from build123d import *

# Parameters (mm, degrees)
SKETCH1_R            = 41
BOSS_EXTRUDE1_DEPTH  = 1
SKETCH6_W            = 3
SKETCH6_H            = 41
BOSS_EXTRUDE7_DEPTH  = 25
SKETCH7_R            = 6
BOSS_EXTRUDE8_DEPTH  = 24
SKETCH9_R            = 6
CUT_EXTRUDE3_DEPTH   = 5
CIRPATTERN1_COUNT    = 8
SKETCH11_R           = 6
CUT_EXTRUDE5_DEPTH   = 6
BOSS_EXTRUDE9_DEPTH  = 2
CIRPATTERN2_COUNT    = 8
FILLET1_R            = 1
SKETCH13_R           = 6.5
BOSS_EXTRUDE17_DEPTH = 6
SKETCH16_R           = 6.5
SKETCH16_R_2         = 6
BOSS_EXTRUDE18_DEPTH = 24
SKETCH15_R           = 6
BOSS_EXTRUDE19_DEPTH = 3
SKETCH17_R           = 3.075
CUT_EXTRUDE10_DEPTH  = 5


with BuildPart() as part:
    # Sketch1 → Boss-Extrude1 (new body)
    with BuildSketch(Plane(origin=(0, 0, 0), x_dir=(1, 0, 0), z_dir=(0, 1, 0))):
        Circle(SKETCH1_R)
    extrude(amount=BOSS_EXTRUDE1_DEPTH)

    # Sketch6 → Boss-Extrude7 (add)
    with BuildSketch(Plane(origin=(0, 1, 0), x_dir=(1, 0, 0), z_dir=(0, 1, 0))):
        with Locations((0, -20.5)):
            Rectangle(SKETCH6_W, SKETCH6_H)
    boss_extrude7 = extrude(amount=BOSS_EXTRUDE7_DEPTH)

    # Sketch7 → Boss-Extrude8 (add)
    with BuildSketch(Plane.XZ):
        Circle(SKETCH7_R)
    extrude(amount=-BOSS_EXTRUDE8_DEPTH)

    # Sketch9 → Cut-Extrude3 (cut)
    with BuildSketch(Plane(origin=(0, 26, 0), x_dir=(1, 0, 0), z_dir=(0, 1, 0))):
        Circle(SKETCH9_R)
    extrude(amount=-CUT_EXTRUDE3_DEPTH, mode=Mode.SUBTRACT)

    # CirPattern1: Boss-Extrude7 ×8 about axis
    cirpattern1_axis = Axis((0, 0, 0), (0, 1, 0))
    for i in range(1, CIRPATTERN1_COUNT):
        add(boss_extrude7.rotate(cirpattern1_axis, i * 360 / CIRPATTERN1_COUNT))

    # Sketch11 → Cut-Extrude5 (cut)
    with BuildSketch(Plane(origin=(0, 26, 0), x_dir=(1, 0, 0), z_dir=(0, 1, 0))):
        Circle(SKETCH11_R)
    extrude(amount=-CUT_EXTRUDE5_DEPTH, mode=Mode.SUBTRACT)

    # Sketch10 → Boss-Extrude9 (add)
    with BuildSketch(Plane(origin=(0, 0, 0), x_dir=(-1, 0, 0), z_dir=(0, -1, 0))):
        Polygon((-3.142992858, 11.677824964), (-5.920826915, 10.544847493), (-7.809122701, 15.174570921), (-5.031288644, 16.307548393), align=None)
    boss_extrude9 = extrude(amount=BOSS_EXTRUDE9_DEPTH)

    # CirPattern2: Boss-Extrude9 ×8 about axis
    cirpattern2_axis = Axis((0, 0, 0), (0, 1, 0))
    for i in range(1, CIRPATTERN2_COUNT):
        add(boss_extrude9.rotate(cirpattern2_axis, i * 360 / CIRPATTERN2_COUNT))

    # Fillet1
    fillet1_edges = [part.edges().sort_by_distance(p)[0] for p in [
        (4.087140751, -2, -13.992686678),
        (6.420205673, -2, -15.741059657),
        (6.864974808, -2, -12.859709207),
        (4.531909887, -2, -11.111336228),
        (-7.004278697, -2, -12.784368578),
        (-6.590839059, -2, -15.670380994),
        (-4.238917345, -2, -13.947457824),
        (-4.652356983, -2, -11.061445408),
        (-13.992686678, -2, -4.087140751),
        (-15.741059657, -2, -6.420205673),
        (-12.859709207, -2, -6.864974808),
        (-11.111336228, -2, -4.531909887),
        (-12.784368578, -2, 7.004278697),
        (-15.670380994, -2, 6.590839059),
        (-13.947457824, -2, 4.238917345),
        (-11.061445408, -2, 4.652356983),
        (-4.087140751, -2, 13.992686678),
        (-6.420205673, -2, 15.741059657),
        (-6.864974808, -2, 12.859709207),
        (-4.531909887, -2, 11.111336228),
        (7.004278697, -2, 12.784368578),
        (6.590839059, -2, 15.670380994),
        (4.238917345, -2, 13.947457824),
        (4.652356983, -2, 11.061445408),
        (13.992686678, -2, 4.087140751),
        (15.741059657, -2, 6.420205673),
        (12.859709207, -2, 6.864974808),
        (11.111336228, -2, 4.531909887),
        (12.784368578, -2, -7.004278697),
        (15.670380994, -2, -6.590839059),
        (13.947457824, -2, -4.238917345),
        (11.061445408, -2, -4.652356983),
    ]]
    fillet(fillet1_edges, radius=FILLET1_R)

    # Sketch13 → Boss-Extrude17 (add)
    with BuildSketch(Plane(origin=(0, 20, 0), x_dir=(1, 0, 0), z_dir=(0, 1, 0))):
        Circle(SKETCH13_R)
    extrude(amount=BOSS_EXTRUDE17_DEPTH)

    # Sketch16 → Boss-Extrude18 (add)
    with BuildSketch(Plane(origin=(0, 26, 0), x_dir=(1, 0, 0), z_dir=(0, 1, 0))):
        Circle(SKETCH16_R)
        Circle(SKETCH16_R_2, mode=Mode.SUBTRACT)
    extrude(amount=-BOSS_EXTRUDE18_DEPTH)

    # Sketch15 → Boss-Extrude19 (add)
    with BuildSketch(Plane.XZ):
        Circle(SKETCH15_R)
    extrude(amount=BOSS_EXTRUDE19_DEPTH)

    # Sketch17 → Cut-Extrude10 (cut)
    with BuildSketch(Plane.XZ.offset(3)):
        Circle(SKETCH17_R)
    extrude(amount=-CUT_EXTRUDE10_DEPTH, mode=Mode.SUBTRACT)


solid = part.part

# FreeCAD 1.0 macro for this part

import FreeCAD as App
import Part
import Sketcher
from FreeCAD import Vector


def edges_at(feature, points):
    """Names of the edges that pass closest to the given points."""
    edges = feature.Shape.Edges
    near = lambda p: min(range(len(edges)), key=lambda i: edges[i].distToShape(Part.Vertex(*p))[0])
    return sorted({f"Edge{near(p) + 1}" for p in points})


def add_polygon(sketch, points):
    """Adds a closed chain of lines whose ends are joined by coincident constraints."""
    first, n = sketch.GeometryCount, len(points)
    for a, b in zip(points, points[1:] + points[:1]):
        sketch.addGeometry(Part.LineSegment(App.Vector(*a, 0), App.Vector(*b, 0)), False)
    for i in range(n):
        sketch.addConstraint(Sketcher.Constraint("Coincident", first + i, 2, first + (i + 1) % n, 1))

doc = App.newDocument("Part")
body = doc.addObject("PartDesign::Body", "Body")

sketch1 = doc.addObject("Sketcher::SketchObject", "Sketch")
body.addObject(sketch1)
sketch1.AttachmentSupport = (doc.XZ_Plane, [""])
sketch1.MapMode = "FlatFace"
sketch1.addGeometry(Part.Circle(Vector(0, 0, 0), Vector(0, 0, 1), 41), False)
sketch1.addConstraint(Sketcher.Constraint("Coincident", 0, 3, -1, 1))
sketch1.addConstraint(Sketcher.Constraint("Diameter", 0, 82.0))
pad1 = doc.addObject("PartDesign::Pad", "Pad")
body.addObject(pad1)
pad1.Profile = sketch1
pad1.Length = 1
pad1.Reversed = True

sketch2 = doc.addObject("Sketcher::SketchObject", "Sketch001")
body.addObject(sketch2)
sketch2.AttachmentSupport = (doc.XZ_Plane, [""])
sketch2.MapMode = "FlatFace"
sketch2.AttachmentOffset = App.Placement(Vector(0, 0, -1), App.Rotation())
add_polygon(sketch2, [(-1.5, 0), (-1.5, 41), (1.5, 41), (1.5, 0)])
sketch2.addConstraint(Sketcher.Constraint("Vertical", 0))
sketch2.addConstraint(Sketcher.Constraint("Horizontal", 1))
sketch2.addConstraint(Sketcher.Constraint("Vertical", 2))
sketch2.addConstraint(Sketcher.Constraint("Horizontal", 3))
sketch2.addConstraint(Sketcher.Constraint("Symmetric", 2, 2, 3, 2, -1, 1))
sketch2.addConstraint(Sketcher.Constraint("DistanceX", 1, 1, 1, 2, 3.0))
sketch2.addConstraint(Sketcher.Constraint("DistanceY", 0, 1, 0, 2, 41.0))
pad2 = doc.addObject("PartDesign::Pad", "Pad001")
body.addObject(pad2)
pad2.Profile = sketch2
pad2.Length = 25
pad2.Reversed = True

sketch3 = doc.addObject("Sketcher::SketchObject", "Sketch002")
body.addObject(sketch3)
sketch3.AttachmentSupport = (doc.XZ_Plane, [""])
sketch3.MapMode = "FlatFace"
sketch3.addGeometry(Part.Circle(Vector(0, 0, 0), Vector(0, 0, 1), 6), False)
sketch3.addConstraint(Sketcher.Constraint("Coincident", 0, 3, -1, 1))
sketch3.addConstraint(Sketcher.Constraint("Diameter", 0, 12.0))
pad3 = doc.addObject("PartDesign::Pad", "Pad002")
body.addObject(pad3)
pad3.Profile = sketch3
pad3.Length = 24
pad3.Reversed = True

sketch4 = doc.addObject("Sketcher::SketchObject", "Sketch003")
body.addObject(sketch4)
sketch4.AttachmentSupport = (doc.XZ_Plane, [""])
sketch4.MapMode = "FlatFace"
sketch4.AttachmentOffset = App.Placement(Vector(0, 0, -26), App.Rotation())
sketch4.addGeometry(Part.Circle(Vector(0, 0, 0), Vector(0, 0, 1), 6), False)
sketch4.addConstraint(Sketcher.Constraint("Coincident", 0, 3, -1, 1))
sketch4.addConstraint(Sketcher.Constraint("Diameter", 0, 12.0))
pocket1 = doc.addObject("PartDesign::Pocket", "Pocket")
body.addObject(pocket1)
pocket1.Profile = sketch4
pocket1.Length = 5
pocket1.Reversed = True
doc.recompute()

polarpattern = doc.addObject("PartDesign::PolarPattern", "PolarPattern")
body.addObject(polarpattern)
polarpattern.Originals = [pad2]
polarpattern.Axis = (doc.Y_Axis, [""])
polarpattern.Angle = 360
polarpattern.Occurrences = 8
body.Tip = polarpattern

sketch5 = doc.addObject("Sketcher::SketchObject", "Sketch004")
body.addObject(sketch5)
sketch5.AttachmentSupport = (doc.XZ_Plane, [""])
sketch5.MapMode = "FlatFace"
sketch5.AttachmentOffset = App.Placement(Vector(0, 0, -26), App.Rotation())
sketch5.addGeometry(Part.Circle(Vector(0, 0, 0), Vector(0, 0, 1), 6), False)
sketch5.addConstraint(Sketcher.Constraint("Coincident", 0, 3, -1, 1))
sketch5.addConstraint(Sketcher.Constraint("Diameter", 0, 12.0))
pocket2 = doc.addObject("PartDesign::Pocket", "Pocket001")
body.addObject(pocket2)
pocket2.Profile = sketch5
pocket2.Length = 6
pocket2.Reversed = True

sketch6 = doc.addObject("Sketcher::SketchObject", "Sketch005")
body.addObject(sketch6)
sketch6.AttachmentSupport = (doc.XZ_Plane, [""])
sketch6.MapMode = "FlatFace"
add_polygon(sketch6, [(5.9, -10.5), (3.1, -11.7), (5, -16.3), (7.8, -15.2)])
sketch6.addConstraint(Sketcher.Constraint("Perpendicular", 0, 1))
sketch6.addConstraint(Sketcher.Constraint("Perpendicular", 1, 2))
sketch6.addConstraint(Sketcher.Constraint("Perpendicular", 2, 3))
sketch6.addConstraint(Sketcher.Constraint("Distance", 0, 3.0))
sketch6.addConstraint(Sketcher.Constraint("Distance", 1, 5.0))
sketch6.addConstraint(Sketcher.Constraint("DistanceY", 1, 2, 3, 2, 5.762701))
sketch6.addConstraint(Sketcher.Constraint("DistanceX", -1, 1, 1, 2, 5.031289))
sketch6.addConstraint(Sketcher.Constraint("DistanceY", 1, 2, -1, 1, 16.307548))
pad4 = doc.addObject("PartDesign::Pad", "Pad003")
body.addObject(pad4)
pad4.Profile = sketch6
pad4.Length = 2
doc.recompute()

polarpattern2 = doc.addObject("PartDesign::PolarPattern", "PolarPattern001")
body.addObject(polarpattern2)
polarpattern2.Originals = [pad4]
polarpattern2.Axis = (doc.Y_Axis, [""])
polarpattern2.Angle = 360
polarpattern2.Occurrences = 8
body.Tip = polarpattern2
doc.recompute()

fillet = doc.addObject("PartDesign::Fillet", "Fillet")
body.addObject(fillet)
fillet.Base = (polarpattern2, edges_at(polarpattern2, [
    (4.087, -2, -13.993),
    (6.42, -2, -15.741),
    (6.865, -2, -12.86),
    (4.532, -2, -11.111),
    (-7.004, -2, -12.784),
    (-6.591, -2, -15.67),
    (-4.239, -2, -13.947),
    (-4.652, -2, -11.061),
    (-13.993, -2, -4.087),
    (-15.741, -2, -6.42),
    (-12.86, -2, -6.865),
    (-11.111, -2, -4.532),
    (-12.784, -2, 7.004),
    (-15.67, -2, 6.591),
    (-13.947, -2, 4.239),
    (-11.061, -2, 4.652),
    (-4.087, -2, 13.993),
    (-6.42, -2, 15.741),
    (-6.865, -2, 12.86),
    (-4.532, -2, 11.111),
    (7.004, -2, 12.784),
    (6.591, -2, 15.67),
    (4.239, -2, 13.947),
    (4.652, -2, 11.061),
    (13.993, -2, 4.087),
    (15.741, -2, 6.42),
    (12.86, -2, 6.865),
    (11.111, -2, 4.532),
    (12.784, -2, -7.004),
    (15.67, -2, -6.591),
    (13.947, -2, -4.239),
    (11.061, -2, -4.652),
]))
fillet.Radius = 1

sketch7 = doc.addObject("Sketcher::SketchObject", "Sketch006")
body.addObject(sketch7)
sketch7.AttachmentSupport = (doc.XZ_Plane, [""])
sketch7.MapMode = "FlatFace"
sketch7.AttachmentOffset = App.Placement(Vector(0, 0, -20), App.Rotation())
sketch7.addGeometry(Part.Circle(Vector(0, 0, 0), Vector(0, 0, 1), 6), False)
sketch7.addConstraint(Sketcher.Constraint("Coincident", 0, 3, -1, 1))
sketch7.addConstraint(Sketcher.Constraint("Diameter", 0, 13.0))
pad5 = doc.addObject("PartDesign::Pad", "Pad004")
body.addObject(pad5)
pad5.Profile = sketch7
pad5.Length = 6
pad5.Reversed = True

sketch8 = doc.addObject("Sketcher::SketchObject", "Sketch007")
body.addObject(sketch8)
sketch8.AttachmentSupport = (doc.XZ_Plane, [""])
sketch8.MapMode = "FlatFace"
sketch8.AttachmentOffset = App.Placement(Vector(0, 0, -26), App.Rotation())
sketch8.addGeometry(Part.Circle(Vector(0, 0, 0), Vector(0, 0, 1), 6), False)
sketch8.addGeometry(Part.Circle(Vector(0, 0, 0), Vector(0, 0, 1), 6), False)
sketch8.addConstraint(Sketcher.Constraint("Coincident", 0, 3, -1, 1))
sketch8.addConstraint(Sketcher.Constraint("Coincident", 1, 3, -1, 1))
sketch8.addConstraint(Sketcher.Constraint("Diameter", 0, 13.0))
sketch8.addConstraint(Sketcher.Constraint("Diameter", 1, 12.0))
pad6 = doc.addObject("PartDesign::Pad", "Pad005")
body.addObject(pad6)
pad6.Profile = sketch8
pad6.Length = 24

sketch9 = doc.addObject("Sketcher::SketchObject", "Sketch008")
body.addObject(sketch9)
sketch9.AttachmentSupport = (doc.XZ_Plane, [""])
sketch9.MapMode = "FlatFace"
sketch9.addGeometry(Part.Circle(Vector(0, 0, 0), Vector(0, 0, 1), 6), False)
sketch9.addConstraint(Sketcher.Constraint("Coincident", 0, 3, -1, 1))
sketch9.addConstraint(Sketcher.Constraint("Diameter", 0, 12.0))
pad7 = doc.addObject("PartDesign::Pad", "Pad006")
body.addObject(pad7)
pad7.Profile = sketch9
pad7.Length = 3

sketch10 = doc.addObject("Sketcher::SketchObject", "Sketch009")
body.addObject(sketch10)
sketch10.AttachmentSupport = (doc.XZ_Plane, [""])
sketch10.MapMode = "FlatFace"
sketch10.AttachmentOffset = App.Placement(Vector(0, 0, 3), App.Rotation())
sketch10.addGeometry(Part.Circle(Vector(0, 0, 0), Vector(0, 0, 1), 3.1), False)
sketch10.addConstraint(Sketcher.Constraint("Coincident", 0, 3, -1, 1))
sketch10.addConstraint(Sketcher.Constraint("Diameter", 0, 6.15))
pocket3 = doc.addObject("PartDesign::Pocket", "Pocket002")
body.addObject(pocket3)
pocket3.Profile = sketch10
pocket3.Length = 5

doc.recompute()
